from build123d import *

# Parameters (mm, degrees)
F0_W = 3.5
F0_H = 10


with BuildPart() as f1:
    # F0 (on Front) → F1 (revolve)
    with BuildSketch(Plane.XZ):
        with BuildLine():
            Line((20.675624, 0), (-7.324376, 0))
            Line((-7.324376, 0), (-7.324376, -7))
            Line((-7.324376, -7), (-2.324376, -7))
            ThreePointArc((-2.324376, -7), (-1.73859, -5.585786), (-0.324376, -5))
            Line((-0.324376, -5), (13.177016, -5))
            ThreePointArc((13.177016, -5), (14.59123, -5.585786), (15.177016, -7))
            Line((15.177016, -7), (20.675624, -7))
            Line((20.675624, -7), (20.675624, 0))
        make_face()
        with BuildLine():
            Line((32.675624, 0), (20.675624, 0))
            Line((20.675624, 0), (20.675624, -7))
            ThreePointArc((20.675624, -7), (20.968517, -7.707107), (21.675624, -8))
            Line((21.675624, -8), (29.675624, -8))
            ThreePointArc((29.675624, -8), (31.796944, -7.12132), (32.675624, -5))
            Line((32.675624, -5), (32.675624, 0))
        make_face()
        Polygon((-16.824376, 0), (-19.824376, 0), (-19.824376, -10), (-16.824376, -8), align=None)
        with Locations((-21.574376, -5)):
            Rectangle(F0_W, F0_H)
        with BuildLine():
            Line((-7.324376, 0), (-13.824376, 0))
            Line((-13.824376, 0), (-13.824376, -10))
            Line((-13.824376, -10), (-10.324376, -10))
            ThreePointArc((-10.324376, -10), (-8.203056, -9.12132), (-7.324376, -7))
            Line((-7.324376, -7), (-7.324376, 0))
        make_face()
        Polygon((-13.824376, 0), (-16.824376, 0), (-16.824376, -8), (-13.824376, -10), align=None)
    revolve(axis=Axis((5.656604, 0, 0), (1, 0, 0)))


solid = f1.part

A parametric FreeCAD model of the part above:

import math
import FreeCAD as App
import Part
import Sketcher
Q = App.Units.Quantity

doc = App.newDocument("Part")
body = doc.addObject("PartDesign::Body", "Body")

sketch1 = body.newObject("Sketcher::SketchObject", "Sketch")
sketch1.AttachmentSupport = (doc.getObject("XZ_Plane"), [""])
sketch1.MapMode = "FlatFace"
sketch1.addGeometry(Part.LineSegment(App.Vector(-7.3, -7, 0), App.Vector(-2.3, -7, 0)), False)
sketch1.addGeometry(Part.ArcOfCircle(Part.Circle(App.Vector(-0.3, -7, 0), App.Vector(0, 0, 1), 2), math.radians(90), math.radians(180)), False)
sketch1.addGeometry(Part.LineSegment(App.Vector(-0.3, -5, 0), App.Vector(13.2, -5, 0)), False)
sketch1.addGeometry(Part.ArcOfCircle(Part.Circle(App.Vector(13.2, -7, 0), App.Vector(0, 0, 1), 2), math.radians(0), math.radians(90)), False)
sketch1.addGeometry(Part.LineSegment(App.Vector(15.2, -7, 0), App.Vector(20.7, -7, 0)), False)
sketch1.addGeometry(Part.ArcOfCircle(Part.Circle(App.Vector(21.7, -7, 0), App.Vector(0, 0, 1), 1), math.radians(180), math.radians(270)), False)
sketch1.addGeometry(Part.LineSegment(App.Vector(21.7, -8, 0), App.Vector(29.7, -8, 0)), False)
sketch1.addGeometry(Part.ArcOfCircle(Part.Circle(App.Vector(29.7, -5, 0), App.Vector(0, 0, 1), 3), math.radians(-90), math.radians(0)), False)
sketch1.addGeometry(Part.LineSegment(App.Vector(32.7, -5, 0), App.Vector(32.7, 0, 0)), False)
sketch1.addGeometry(Part.LineSegment(App.Vector(32.7, 0, 0), App.Vector(-23.3, 0, 0)), False)
sketch1.addGeometry(Part.LineSegment(App.Vector(-23.3, 0, 0), App.Vector(-23.3, -10, 0)), False)
sketch1.addGeometry(Part.LineSegment(App.Vector(-23.3, -10, 0), App.Vector(-19.8, -10, 0)), False)
sketch1.addGeometry(Part.LineSegment(App.Vector(-19.8, -10, 0), App.Vector(-16.8, -8, 0)), False)
sketch1.addGeometry(Part.LineSegment(App.Vector(-16.8, -8, 0), App.Vector(-13.8, -10, 0)), False)
sketch1.addGeometry(Part.LineSegment(App.Vector(-13.8, -10, 0), App.Vector(-10.3, -10, 0)), False)
sketch1.addGeometry(Part.ArcOfCircle(Part.Circle(App.Vector(-10.3, -7, 0), App.Vector(0, 0, 1), 3), math.radians(-90), math.radians(0)), False)
sketch1.addConstraint(Sketcher.Constraint("Coincident", 0, 2, 1, 2))
sketch1.addConstraint(Sketcher.Constraint("Tangent", 1, 1, 2, 1))
sketch1.addConstraint(Sketcher.Constraint("Tangent", 2, 2, 3, 2))
sketch1.addConstraint(Sketcher.Constraint("Coincident", 3, 1, 4, 1))
sketch1.addConstraint(Sketcher.Constraint("Coincident", 4, 2, 5, 1))
sketch1.addConstraint(Sketcher.Constraint("Tangent", 5, 2, 6, 1))
sketch1.addConstraint(Sketcher.Constraint("Tangent", 6, 2, 7, 1))
sketch1.addConstraint(Sketcher.Constraint("Tangent", 7, 2, 8, 1))
sketch1.addConstraint(Sketcher.Constraint("Coincident", 8, 2, 9, 1))
sketch1.addConstraint(Sketcher.Constraint("Coincident", 9, 2, 10, 1))
sketch1.addConstraint(Sketcher.Constraint("Coincident", 10, 2, 11, 1))
sketch1.addConstraint(Sketcher.Constraint("Coincident", 11, 2, 12, 1))
sketch1.addConstraint(Sketcher.Constraint("Coincident", 12, 2, 13, 1))
sketch1.addConstraint(Sketcher.Constraint("Coincident", 13, 2, 14, 1))
sketch1.addConstraint(Sketcher.Constraint("Tangent", 14, 2, 15, 1))
sketch1.addConstraint(Sketcher.Constraint("Coincident", 15, 2, 0, 1))
sketch1.addConstraint(Sketcher.Constraint("Horizontal", 0))
sketch1.addConstraint(Sketcher.Constraint("Horizontal", 2))
sketch1.addConstraint(Sketcher.Constraint("Horizontal", 4))
sketch1.addConstraint(Sketcher.Constraint("Horizontal", 6))
sketch1.addConstraint(Sketcher.Constraint("Vertical", 8))
sketch1.addConstraint(Sketcher.Constraint("Horizontal", 9))
sketch1.addConstraint(Sketcher.Constraint("Vertical", 10))
sketch1.addConstraint(Sketcher.Constraint("Horizontal", 11))
sketch1.addConstraint(Sketcher.Constraint("Horizontal", 14))
sketch1.addConstraint(Sketcher.Constraint("Equal", 1, 3))
sketch1.addConstraint(Sketcher.Constraint("Equal", 7, 15))
sketch1.addConstraint(Sketcher.Constraint("PointOnObject", 8, 2, -1))
sketch1.addConstraint(Sketcher.Constraint("Horizontal", 5, 3, 15, 3))
sketch1.addConstraint(Sketcher.Constraint("Horizontal", 15, 3, 0, 2))
sketch1.addConstraint(Sketcher.Constraint("Horizontal", 7, 3, 1, 1))
sketch1.addConstraint(Sketcher.Constraint("Horizontal", 0, 2, 3, 1))
sketch1.addConstraint(Sketcher.Constraint("Horizontal", 6, 2, 12, 2))
sketch1.addConstraint(Sketcher.Constraint("Horizontal", 11, 2, 13, 2))
sketch1.addConstraint(Sketcher.Constraint("Equal", 11, 14))
sketch1.addConstraint(Sketcher.Constraint("Equal", 0, 8))
sketch1.addConstraint(Sketcher.Constraint("Equal", 12, 13))
sketch1.addConstraint(Sketcher.Constraint("Radius", 1, Q("1.999999 mm")))
sketch1.addConstraint(Sketcher.Constraint("Radius", 5, Q("0.999999 mm")))
sketch1.addConstraint(Sketcher.Constraint("Radius", 7, Q("3.000001 mm")))
sketch1.addConstraint(Sketcher.Constraint("DistanceX", 0, 1, 0, 2, Q("5 mm")))
sketch1.addConstraint(Sketcher.Constraint("DistanceX", 6, 1, 6, 2, Q("8 mm")))
sketch1.addConstraint(Sketcher.Constraint("DistanceX", 9, 2, 9, 1, Q("56 mm")))
sketch1.addConstraint(Sketcher.Constraint("DistanceX", 11, 1, 11, 2, Q("3.5 mm")))
sketch1.addConstraint(Sketcher.Constraint("DistanceX", 1, 3, 5, 3, Q("22.000001 mm")))
sketch1.addConstraint(Sketcher.Constraint("DistanceX", 2, 1, 2, 2, Q("13.501392 mm")))
sketch1.addConstraint(Sketcher.Constraint("DistanceX", 1, 3, -1, 1, Q("0.324377 mm")))
revolution = body.newObject("PartDesign::Revolution", "Revolution")
revolution.Profile = sketch1
revolution.ReferenceAxis = (sketch1, ["H_Axis"])
revolution.Angle = 360

doc.recompute()
